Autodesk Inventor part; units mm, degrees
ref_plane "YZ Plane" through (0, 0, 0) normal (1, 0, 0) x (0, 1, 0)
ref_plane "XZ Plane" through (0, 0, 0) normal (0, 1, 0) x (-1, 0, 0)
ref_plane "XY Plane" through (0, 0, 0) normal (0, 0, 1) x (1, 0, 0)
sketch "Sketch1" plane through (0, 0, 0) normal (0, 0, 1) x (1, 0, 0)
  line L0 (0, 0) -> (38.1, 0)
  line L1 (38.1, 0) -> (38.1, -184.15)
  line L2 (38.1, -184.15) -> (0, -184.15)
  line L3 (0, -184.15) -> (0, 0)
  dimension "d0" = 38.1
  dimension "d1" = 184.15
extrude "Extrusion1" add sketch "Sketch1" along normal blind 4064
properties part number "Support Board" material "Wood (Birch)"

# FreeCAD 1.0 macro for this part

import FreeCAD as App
import Part
import Sketcher
from FreeCAD import Vector
Q = App.Units.Quantity

doc = App.newDocument("Part")
params = doc.addObject("Spreadsheet::Sheet", "Params")
for row, (alias, value) in enumerate([
    ("sketch1_width", "1.5 in"),
    ("sketch1_height", "7.25 in"),
    ("pad1_length", "160 in"),
], start=1):
    params.set(f"A{row}", alias)
    params.set(f"B{row}", "=" + value)
    params.setAlias(f"B{row}", alias)

body = doc.addObject("PartDesign::Body", "Body")

# Sketch on XY plane
sketch1 = doc.addObject("Sketcher::SketchObject", "Sketch")
body.addObject(sketch1)
sketch1.AttachmentSupport = (doc.XY_Plane, [""])
sketch1.MapMode = "FlatFace"
sketch1.addGeometry([
    Part.LineSegment(Vector(38, 0, 0), Vector(0, 0, 0)),
    Part.LineSegment(Vector(0, 0, 0), Vector(0, -184, 0)),
    Part.LineSegment(Vector(0, -184, 0), Vector(38, -184, 0)),
    Part.LineSegment(Vector(38, -184, 0), Vector(38, 0, 0)),
], False)
sketch1.addConstraint([
    Sketcher.Constraint("Coincident", 0, 2, 1, 1),
    Sketcher.Constraint("Coincident", 1, 2, 2, 1),
    Sketcher.Constraint("Coincident", 2, 2, 3, 1),
    Sketcher.Constraint("Coincident", 3, 2, 0, 1),
    Sketcher.Constraint("Horizontal", 0),
    Sketcher.Constraint("Vertical", 1),
    Sketcher.Constraint("Horizontal", 2),
    Sketcher.Constraint("Vertical", 3),
    Sketcher.Constraint("Coincident", 0, 2, -1, 1),
    Sketcher.Constraint("DistanceX", 0, 2, 0, 1, Q("1.5 in")),
    Sketcher.Constraint("DistanceY", 1, 2, 1, 1, Q("7.25 in")),
])
sketch1.setExpression("Constraints[9]", "Params.sketch1_width")
sketch1.setExpression("Constraints[10]", "Params.sketch1_height")
pad1 = doc.addObject("PartDesign::Pad", "Pad")
body.addObject(pad1)
pad1.Profile = sketch1
pad1.setExpression("Length", "Params.pad1_length")

doc.recompute()
